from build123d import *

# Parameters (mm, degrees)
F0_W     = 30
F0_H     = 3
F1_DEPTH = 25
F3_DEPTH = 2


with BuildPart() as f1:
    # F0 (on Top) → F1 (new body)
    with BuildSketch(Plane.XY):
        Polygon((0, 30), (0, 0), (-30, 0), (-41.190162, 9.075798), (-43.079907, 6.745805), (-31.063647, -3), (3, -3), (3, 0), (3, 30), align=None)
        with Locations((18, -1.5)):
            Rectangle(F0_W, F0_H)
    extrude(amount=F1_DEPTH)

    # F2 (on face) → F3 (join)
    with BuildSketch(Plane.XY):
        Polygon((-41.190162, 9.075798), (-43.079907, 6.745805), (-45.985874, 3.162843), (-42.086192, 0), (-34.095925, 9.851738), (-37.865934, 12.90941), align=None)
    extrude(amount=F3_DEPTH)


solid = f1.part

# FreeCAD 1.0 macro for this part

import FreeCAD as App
import Part
import Sketcher
from FreeCAD import Vector

doc = App.newDocument("Part")
body = doc.addObject("PartDesign::Body", "Body")

# Sketch on XY plane
sketch1 = doc.addObject("Sketcher::SketchObject", "Sketch")
body.addObject(sketch1)
sketch1.AttachmentSupport = (doc.XY_Plane, [""])
sketch1.MapMode = "FlatFace"
sketch1.addGeometry(Part.LineSegment(Vector(0, 30, 0), Vector(0, 0, 0)), False)
sketch1.addGeometry(Part.LineSegment(Vector(0, 0, 0), Vector(-30, 0, 0)), False)
sketch1.addGeometry(Part.LineSegment(Vector(-30, 0, 0), Vector(-41.2, 9.1, 0)), False)
sketch1.addGeometry(Part.LineSegment(Vector(-41.2, 9.1, 0), Vector(-43.1, 6.7, 0)), False)
sketch1.addGeometry(Part.LineSegment(Vector(-43.1, 6.7, 0), Vector(-31.1, -3, 0)), False)
sketch1.addGeometry(Part.LineSegment(Vector(-31.1, -3, 0), Vector(33, -3, 0)), False)
sketch1.addGeometry(Part.LineSegment(Vector(33, -3, 0), Vector(33, 0, 0)), False)
sketch1.addGeometry(Part.LineSegment(Vector(33, 0, 0), Vector(3, 0, 0)), False)
sketch1.addGeometry(Part.LineSegment(Vector(3, 0, 0), Vector(3, 30, 0)), False)
sketch1.addGeometry(Part.LineSegment(Vector(3, 30, 0), Vector(0, 30, 0)), False)
sketch1.addConstraint(Sketcher.Constraint("Coincident", 0, 2, 1, 1))
sketch1.addConstraint(Sketcher.Constraint("Coincident", 1, 2, 2, 1))
sketch1.addConstraint(Sketcher.Constraint("Coincident", 2, 2, 3, 1))
sketch1.addConstraint(Sketcher.Constraint("Coincident", 3, 2, 4, 1))
sketch1.addConstraint(Sketcher.Constraint("Coincident", 4, 2, 5, 1))
sketch1.addConstraint(Sketcher.Constraint("Coincident", 5, 2, 6, 1))
sketch1.addConstraint(Sketcher.Constraint("Coincident", 6, 2, 7, 1))
sketch1.addConstraint(Sketcher.Constraint("Coincident", 7, 2, 8, 1))
sketch1.addConstraint(Sketcher.Constraint("Coincident", 8, 2, 9, 1))
sketch1.addConstraint(Sketcher.Constraint("Coincident", 9, 2, 0, 1))
sketch1.addConstraint(Sketcher.Constraint("Vertical", 0))
sketch1.addConstraint(Sketcher.Constraint("Horizontal", 1))
sketch1.addConstraint(Sketcher.Constraint("Horizontal", 5))
sketch1.addConstraint(Sketcher.Constraint("Vertical", 6))
sketch1.addConstraint(Sketcher.Constraint("Horizontal", 7))
sketch1.addConstraint(Sketcher.Constraint("Vertical", 8))
sketch1.addConstraint(Sketcher.Constraint("Horizontal", 9))
sketch1.addConstraint(Sketcher.Constraint("Coincident", 0, 2, -1, 1))
sketch1.addConstraint(Sketcher.Constraint("PointOnObject", 6, 2, -1))
sketch1.addConstraint(Sketcher.Constraint("Perpendicular", 2, 3))
sketch1.addConstraint(Sketcher.Constraint("Perpendicular", 3, 4))
sketch1.addConstraint(Sketcher.Constraint("Equal", 1, 7))
sketch1.addConstraint(Sketcher.Constraint("Equal", 7, 0))
sketch1.addConstraint(Sketcher.Constraint("Equal", 9, 6))
sketch1.addConstraint(Sketcher.Constraint("DistanceX", 1, 2, 1, 1, 30.0))
sketch1.addConstraint(Sketcher.Constraint("DistanceX", 9, 2, 9, 1, 3.0))
sketch1.addConstraint(Sketcher.Constraint("Distance", 3, 3.000001))
sketch1.addConstraint(Sketcher.Constraint("DistanceY", -1, 1, 2, 2, 9.075798))
sketch1.addConstraint(Sketcher.Constraint("Distance", 2, 14.407978))
pad1 = doc.addObject("PartDesign::Pad", "Pad")
body.addObject(pad1)
pad1.Profile = sketch1
pad1.Length = 25

# Sketch on XY plane
sketch2 = doc.addObject("Sketcher::SketchObject", "Sketch001")
body.addObject(sketch2)
sketch2.AttachmentSupport = (doc.XY_Plane, [""])
sketch2.MapMode = "FlatFace"
sketch2.addGeometry(Part.LineSegment(Vector(-41.2, 9.1, 0), Vector(-43.1, 6.7, 0)), False)
sketch2.addGeometry(Part.LineSegment(Vector(-43.1, 6.7, 0), Vector(-46, 3.2, 0)), False)
sketch2.addGeometry(Part.LineSegment(Vector(-46, 3.2, 0), Vector(-42.1, 0, 0)), False)
sketch2.addGeometry(Part.LineSegment(Vector(-42.1, 0, 0), Vector(-34.1, 9.9, 0)), False)
sketch2.addGeometry(Part.LineSegment(Vector(-34.1, 9.9, 0), Vector(-37.9, 12.9, 0)), False)
sketch2.addGeometry(Part.LineSegment(Vector(-37.9, 12.9, 0), Vector(-41.2, 9.1, 0)), False)
sketch2.addConstraint(Sketcher.Constraint("Coincident", 0, 2, 1, 1))
sketch2.addConstraint(Sketcher.Constraint("Coincident", 1, 2, 2, 1))
sketch2.addConstraint(Sketcher.Constraint("Coincident", 2, 2, 3, 1))
sketch2.addConstraint(Sketcher.Constraint("Coincident", 3, 2, 4, 1))
sketch2.addConstraint(Sketcher.Constraint("Coincident", 4, 2, 5, 1))
sketch2.addConstraint(Sketcher.Constraint("Coincident", 5, 2, 0, 1))
sketch2.addConstraint(Sketcher.Constraint("PointOnObject", 2, 2, -1))
sketch2.addConstraint(Sketcher.Constraint("Parallel", 0, 1))
sketch2.addConstraint(Sketcher.Constraint("Perpendicular", 1, 2))
sketch2.addConstraint(Sketcher.Constraint("Perpendicular", 2, 3))
sketch2.addConstraint(Sketcher.Constraint("Perpendicular", 3, 4))
sketch2.addConstraint(Sketcher.Constraint("Distance", 0, 3.000001))
sketch2.addConstraint(Sketcher.Constraint("DistanceY", -1, 1, 5, 2, 9.075798))
sketch2.addConstraint(Sketcher.Constraint("Distance", 1, 4.61327))
sketch2.addConstraint(Sketcher.Constraint("Distance", 3, 12.68468))
sketch2.addConstraint(Sketcher.Constraint("DistanceX", 2, 2, -1, 1, 42.086192))
sketch2.addConstraint(Sketcher.Constraint("DistanceY", -1, 1, 4, 2, 12.90941))
sketch2.addConstraint(Sketcher.Constraint("DistanceY", 1, 2, 0, 2, 3.582962))
pad2 = doc.addObject("PartDesign::Pad", "Pad001")
body.addObject(pad2)
pad2.Profile = sketch2
pad2.Length = 2

doc.recompute()
